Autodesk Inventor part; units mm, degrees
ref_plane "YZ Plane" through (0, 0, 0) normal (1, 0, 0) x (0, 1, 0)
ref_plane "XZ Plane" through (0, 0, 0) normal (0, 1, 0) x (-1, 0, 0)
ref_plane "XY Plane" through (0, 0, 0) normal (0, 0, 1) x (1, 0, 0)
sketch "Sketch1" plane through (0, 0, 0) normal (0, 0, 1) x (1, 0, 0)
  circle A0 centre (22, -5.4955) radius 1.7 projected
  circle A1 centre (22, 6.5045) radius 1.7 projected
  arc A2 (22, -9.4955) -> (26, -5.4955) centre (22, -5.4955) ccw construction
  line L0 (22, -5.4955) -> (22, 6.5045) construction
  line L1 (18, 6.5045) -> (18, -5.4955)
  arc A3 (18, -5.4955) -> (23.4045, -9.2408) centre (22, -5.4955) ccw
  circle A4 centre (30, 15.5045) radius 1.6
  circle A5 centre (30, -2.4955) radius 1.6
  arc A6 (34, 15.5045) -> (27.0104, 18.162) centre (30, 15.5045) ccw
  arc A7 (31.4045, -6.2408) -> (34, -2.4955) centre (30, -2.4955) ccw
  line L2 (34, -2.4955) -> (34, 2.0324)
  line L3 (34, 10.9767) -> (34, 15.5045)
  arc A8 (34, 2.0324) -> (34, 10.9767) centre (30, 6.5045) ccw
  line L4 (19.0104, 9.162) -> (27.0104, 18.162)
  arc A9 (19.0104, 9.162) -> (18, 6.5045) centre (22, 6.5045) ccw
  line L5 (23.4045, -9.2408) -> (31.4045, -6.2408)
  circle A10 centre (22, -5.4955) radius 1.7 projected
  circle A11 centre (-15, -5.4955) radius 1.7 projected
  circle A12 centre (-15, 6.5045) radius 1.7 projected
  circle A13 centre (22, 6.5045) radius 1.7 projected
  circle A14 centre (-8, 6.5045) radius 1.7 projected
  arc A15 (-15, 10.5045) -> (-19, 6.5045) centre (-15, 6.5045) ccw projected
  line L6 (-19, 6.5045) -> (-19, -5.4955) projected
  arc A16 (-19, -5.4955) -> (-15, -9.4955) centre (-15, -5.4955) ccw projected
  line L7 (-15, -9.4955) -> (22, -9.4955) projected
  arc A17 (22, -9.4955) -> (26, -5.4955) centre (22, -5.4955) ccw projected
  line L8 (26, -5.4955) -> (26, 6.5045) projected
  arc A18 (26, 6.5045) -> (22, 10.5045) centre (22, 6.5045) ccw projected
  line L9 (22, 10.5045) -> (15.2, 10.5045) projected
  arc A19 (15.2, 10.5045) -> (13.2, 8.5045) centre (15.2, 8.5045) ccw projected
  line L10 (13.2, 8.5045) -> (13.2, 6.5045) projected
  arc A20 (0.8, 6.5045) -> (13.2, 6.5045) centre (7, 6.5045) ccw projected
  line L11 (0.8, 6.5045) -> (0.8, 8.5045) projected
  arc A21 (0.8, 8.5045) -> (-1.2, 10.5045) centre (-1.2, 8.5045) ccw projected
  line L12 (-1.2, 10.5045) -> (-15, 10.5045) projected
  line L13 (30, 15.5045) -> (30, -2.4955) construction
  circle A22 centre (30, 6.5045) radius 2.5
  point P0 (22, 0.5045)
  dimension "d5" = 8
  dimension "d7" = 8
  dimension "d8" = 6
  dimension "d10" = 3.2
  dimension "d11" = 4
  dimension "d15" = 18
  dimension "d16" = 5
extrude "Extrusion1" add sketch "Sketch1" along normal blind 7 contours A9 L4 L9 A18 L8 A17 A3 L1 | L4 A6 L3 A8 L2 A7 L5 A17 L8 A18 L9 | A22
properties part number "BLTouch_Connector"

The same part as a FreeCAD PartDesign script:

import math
import FreeCAD as App
import Part
import Sketcher

doc = App.newDocument("Part")
body = doc.addObject("PartDesign::Body", "Body")

# Sketch on XY plane
sketch1 = doc.addObject("Sketcher::SketchObject", "Sketch")
body.addObject(sketch1)
sketch1.AttachmentSupport = (doc.XY_Plane, [""])
sketch1.MapMode = "FlatFace"
sketch1.addGeometry([
    Part.ArcOfCircle(Part.Circle(App.Vector(22, 6.5, 0), App.Vector(0, 0, 1), 4), math.radians(138), math.radians(180)),  # 0
    Part.LineSegment(App.Vector(18, 6.5, 0), App.Vector(18, -5.5, 0)),  # 1
    Part.ArcOfCircle(Part.Circle(App.Vector(22, -5.5, 0), App.Vector(0, 0, 1), 4), math.radians(180), math.radians(291)),  # 2
    Part.LineSegment(App.Vector(23.4, -9.2, 0), App.Vector(31.4, -6.2, 0)),  # 3
    Part.ArcOfCircle(Part.Circle(App.Vector(30, -2.5, 0), App.Vector(0, 0, 1), 4), math.radians(-69), math.radians(0)),  # 4
    Part.LineSegment(App.Vector(34, -2.5, 0), App.Vector(34, 2, 0)),  # 5
    Part.ArcOfCircle(Part.Circle(App.Vector(30, 6.5, 0), App.Vector(0, 0, 1), 6), math.radians(-48), math.radians(48)),  # 6
    Part.LineSegment(App.Vector(34, 11, 0), App.Vector(34, 15.5, 0)),  # 7
    Part.ArcOfCircle(Part.Circle(App.Vector(30, 15.5, 0), App.Vector(0, 0, 1), 4), math.radians(0), math.radians(138)),  # 8
    Part.LineSegment(App.Vector(27, 18.2, 0), App.Vector(19, 9.2, 0)),  # 9
    Part.Circle(App.Vector(22, -5.5, 0), App.Vector(0, 0, 1), 1.7),  # 10
    Part.Circle(App.Vector(22, 6.5, 0), App.Vector(0, 0, 1), 1.7),  # 11
    Part.Circle(App.Vector(30, 15.5, 0), App.Vector(0, 0, 1), 1.6),  # 12
    Part.Circle(App.Vector(30, -2.5, 0), App.Vector(0, 0, 1), 1.6),  # 13
], False)
sketch1.addConstraint([
    Sketcher.Constraint("Tangent", 0, 2, 1, 1),
    Sketcher.Constraint("Tangent", 1, 2, 2, 1),
    Sketcher.Constraint("Tangent", 2, 2, 3, 1),
    Sketcher.Constraint("Tangent", 3, 2, 4, 1),
    Sketcher.Constraint("Tangent", 4, 2, 5, 1),
    Sketcher.Constraint("Coincident", 5, 2, 6, 1),
    Sketcher.Constraint("Coincident", 6, 2, 7, 1),
    Sketcher.Constraint("Tangent", 7, 2, 8, 1),
    Sketcher.Constraint("Tangent", 8, 2, 9, 1),
    Sketcher.Constraint("Tangent", 9, 2, 0, 1),
    Sketcher.Constraint("Vertical", 1),
    Sketcher.Constraint("Vertical", 5),
    Sketcher.Constraint("Vertical", 7),
    Sketcher.Constraint("Coincident", 10, 3, 2, 3),
    Sketcher.Constraint("Coincident", 11, 3, 0, 3),
    Sketcher.Constraint("Coincident", 12, 3, 8, 3),
    Sketcher.Constraint("Coincident", 13, 3, 4, 3),
    Sketcher.Constraint("Equal", 0, 2),
    Sketcher.Constraint("Equal", 2, 4),
    Sketcher.Constraint("Equal", 4, 8),
    Sketcher.Constraint("Equal", 10, 11),
    Sketcher.Constraint("Equal", 12, 13),
    Sketcher.Constraint("Horizontal", 0, 3, 6, 3),
    Sketcher.Constraint("Vertical", 4, 3, 6, 3),
    Sketcher.Constraint("Vertical", 6, 3, 8, 3),
    Sketcher.Constraint("Equal", 5, 7),
    Sketcher.Constraint("Radius", 0, 4.0),
    Sketcher.Constraint("Radius", 6, 6.0),
    Sketcher.Constraint("Diameter", 12, 3.2),
    Sketcher.Constraint("DistanceX", -1, 1, 0, 2, 18.0),
    Sketcher.Constraint("DistanceX", 2, 3, 4, 3, 8.0),
    Sketcher.Constraint("DistanceY", 4, 3, 8, 3, 18.0),
    Sketcher.Constraint("Diameter", 10, 3.4),
    Sketcher.Constraint("DistanceY", 1, 2, 1, 1, 12.0),
    Sketcher.Constraint("DistanceY", -1, 1, 8, 2, 18.162),
])
pad1 = doc.addObject("PartDesign::Pad", "Pad")
body.addObject(pad1)
pad1.Profile = sketch1
pad1.Length = 7

doc.recompute()
